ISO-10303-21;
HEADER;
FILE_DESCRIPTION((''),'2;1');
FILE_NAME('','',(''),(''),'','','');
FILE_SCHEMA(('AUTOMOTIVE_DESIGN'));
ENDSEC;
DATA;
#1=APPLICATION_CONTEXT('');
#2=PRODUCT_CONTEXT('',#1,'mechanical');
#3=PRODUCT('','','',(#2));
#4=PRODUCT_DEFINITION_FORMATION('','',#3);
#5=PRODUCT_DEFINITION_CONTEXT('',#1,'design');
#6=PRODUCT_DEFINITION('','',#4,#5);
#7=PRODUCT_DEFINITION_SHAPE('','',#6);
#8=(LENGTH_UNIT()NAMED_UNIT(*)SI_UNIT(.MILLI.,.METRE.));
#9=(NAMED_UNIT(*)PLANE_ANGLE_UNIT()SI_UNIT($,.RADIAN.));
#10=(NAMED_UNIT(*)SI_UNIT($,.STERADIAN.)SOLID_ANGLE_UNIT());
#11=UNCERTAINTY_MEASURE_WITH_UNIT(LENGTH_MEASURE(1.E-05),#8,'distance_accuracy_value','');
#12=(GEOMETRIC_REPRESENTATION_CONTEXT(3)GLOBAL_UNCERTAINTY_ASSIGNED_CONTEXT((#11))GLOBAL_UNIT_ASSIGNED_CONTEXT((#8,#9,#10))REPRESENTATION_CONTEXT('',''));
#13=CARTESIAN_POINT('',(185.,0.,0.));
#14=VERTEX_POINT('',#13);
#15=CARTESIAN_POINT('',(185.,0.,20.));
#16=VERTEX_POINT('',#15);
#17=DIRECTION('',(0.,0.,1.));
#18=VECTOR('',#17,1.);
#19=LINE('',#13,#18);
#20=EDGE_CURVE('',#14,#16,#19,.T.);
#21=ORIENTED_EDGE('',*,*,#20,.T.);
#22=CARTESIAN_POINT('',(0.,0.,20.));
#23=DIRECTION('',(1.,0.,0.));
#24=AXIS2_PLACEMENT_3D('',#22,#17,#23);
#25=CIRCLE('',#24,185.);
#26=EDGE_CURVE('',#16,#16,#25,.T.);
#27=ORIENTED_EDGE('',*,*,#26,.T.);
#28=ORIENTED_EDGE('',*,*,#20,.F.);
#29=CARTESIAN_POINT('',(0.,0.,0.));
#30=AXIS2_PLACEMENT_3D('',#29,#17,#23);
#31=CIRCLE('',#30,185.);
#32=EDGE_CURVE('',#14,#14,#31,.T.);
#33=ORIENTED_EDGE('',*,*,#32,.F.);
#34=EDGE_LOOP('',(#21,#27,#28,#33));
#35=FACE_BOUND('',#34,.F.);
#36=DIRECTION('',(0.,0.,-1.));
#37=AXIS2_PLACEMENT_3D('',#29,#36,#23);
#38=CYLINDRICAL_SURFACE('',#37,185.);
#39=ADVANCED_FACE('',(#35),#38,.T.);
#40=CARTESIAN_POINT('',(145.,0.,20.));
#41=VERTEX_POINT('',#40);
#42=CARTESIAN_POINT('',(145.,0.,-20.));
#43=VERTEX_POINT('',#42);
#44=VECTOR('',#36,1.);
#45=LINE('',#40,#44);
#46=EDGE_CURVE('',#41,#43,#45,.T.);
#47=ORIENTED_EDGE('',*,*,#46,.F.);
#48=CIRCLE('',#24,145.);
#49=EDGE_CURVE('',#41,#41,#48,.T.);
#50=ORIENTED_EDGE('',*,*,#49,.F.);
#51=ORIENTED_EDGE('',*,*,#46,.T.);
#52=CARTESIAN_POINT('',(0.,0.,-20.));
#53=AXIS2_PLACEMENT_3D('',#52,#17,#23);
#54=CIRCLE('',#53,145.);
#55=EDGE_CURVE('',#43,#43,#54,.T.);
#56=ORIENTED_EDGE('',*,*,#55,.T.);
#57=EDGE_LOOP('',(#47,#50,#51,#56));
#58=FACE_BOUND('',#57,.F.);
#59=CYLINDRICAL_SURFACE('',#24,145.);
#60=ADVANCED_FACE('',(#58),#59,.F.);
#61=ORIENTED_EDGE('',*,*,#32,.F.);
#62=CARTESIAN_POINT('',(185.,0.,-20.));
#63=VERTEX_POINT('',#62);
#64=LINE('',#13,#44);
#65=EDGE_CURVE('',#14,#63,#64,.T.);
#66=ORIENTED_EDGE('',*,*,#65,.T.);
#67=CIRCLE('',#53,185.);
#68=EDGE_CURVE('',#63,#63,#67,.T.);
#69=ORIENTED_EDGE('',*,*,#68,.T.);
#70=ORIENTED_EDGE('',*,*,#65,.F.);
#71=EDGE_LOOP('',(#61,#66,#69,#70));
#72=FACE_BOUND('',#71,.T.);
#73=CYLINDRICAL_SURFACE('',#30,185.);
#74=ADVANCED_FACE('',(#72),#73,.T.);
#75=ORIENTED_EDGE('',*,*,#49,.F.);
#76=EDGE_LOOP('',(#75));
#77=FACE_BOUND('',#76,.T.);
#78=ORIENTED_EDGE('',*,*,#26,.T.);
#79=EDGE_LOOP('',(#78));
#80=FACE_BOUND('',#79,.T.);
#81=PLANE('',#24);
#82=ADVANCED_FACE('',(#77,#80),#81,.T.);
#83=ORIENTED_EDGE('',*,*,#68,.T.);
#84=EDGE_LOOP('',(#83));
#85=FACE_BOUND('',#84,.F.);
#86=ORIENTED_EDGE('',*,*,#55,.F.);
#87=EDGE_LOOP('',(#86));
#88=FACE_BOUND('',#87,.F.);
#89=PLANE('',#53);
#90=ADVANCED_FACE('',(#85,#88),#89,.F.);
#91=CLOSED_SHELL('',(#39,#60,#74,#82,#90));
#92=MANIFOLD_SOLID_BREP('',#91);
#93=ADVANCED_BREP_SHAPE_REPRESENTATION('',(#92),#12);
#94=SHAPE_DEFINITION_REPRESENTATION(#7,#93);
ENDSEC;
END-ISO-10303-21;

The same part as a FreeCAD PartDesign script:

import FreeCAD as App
import Part
import Sketcher

doc = App.newDocument("Part")
body = doc.addObject("PartDesign::Body", "Body")

sketch1 = doc.addObject("Sketcher::SketchObject", "Sketch")
body.addObject(sketch1)
sketch1.AttachmentSupport = (doc.XY_Plane, [""])
sketch1.MapMode = "FlatFace"
sketch1.addGeometry(Part.Circle(App.Vector(0, 0, 0), App.Vector(0, 0, 1), 185), False)
sketch1.addConstraint([
    Sketcher.Constraint("Coincident", 0, 3, -1, 1),
    Sketcher.Constraint("Diameter", 0, 370.0),
])
pad1 = doc.addObject("PartDesign::Pad", "Pad")
body.addObject(pad1)
pad1.Profile = sketch1
pad1.Length = 40
pad1.Midplane = True

sketch2 = doc.addObject("Sketcher::SketchObject", "Sketch001")
body.addObject(sketch2)
sketch2.AttachmentSupport = (doc.XY_Plane, [""])
sketch2.MapMode = "FlatFace"
sketch2.AttachmentOffset = App.Placement(App.Vector(0, 0, 20), App.Rotation())
sketch2.addGeometry(Part.Circle(App.Vector(0, 0, 0), App.Vector(0, 0, 1), 145), False)
sketch2.addConstraint([
    Sketcher.Constraint("Coincident", 0, 3, -1, 1),
    Sketcher.Constraint("Diameter", 0, 290.0),
])
pocket1 = doc.addObject("PartDesign::Pocket", "Pocket")
body.addObject(pocket1)
pocket1.Profile = sketch2
pocket1.Type = "ThroughAll"

doc.recompute()
